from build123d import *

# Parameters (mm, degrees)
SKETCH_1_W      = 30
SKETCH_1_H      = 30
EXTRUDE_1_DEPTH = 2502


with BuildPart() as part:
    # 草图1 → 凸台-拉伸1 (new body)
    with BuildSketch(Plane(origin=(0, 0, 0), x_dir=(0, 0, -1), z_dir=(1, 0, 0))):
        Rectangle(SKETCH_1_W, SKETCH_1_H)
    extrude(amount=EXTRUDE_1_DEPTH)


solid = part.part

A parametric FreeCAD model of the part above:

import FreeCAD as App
import Part
import Sketcher

V = App.Vector

doc = App.newDocument("Part")
body = doc.addObject("PartDesign::Body", "Body")

# Sketch on YZ plane
sketch1 = body.newObject("Sketcher::SketchObject", "Sketch")
sketch1.AttachmentSupport = (doc.getObject("YZ_Plane"), [""])
sketch1.MapMode = "FlatFace"
sketch1.addGeometry([
    Part.LineSegment(V(15, 15, 0), V(-15, 15, 0)),
    Part.LineSegment(V(-15, 15, 0), V(-15, -15, 0)),
    Part.LineSegment(V(-15, -15, 0), V(15, -15, 0)),
    Part.LineSegment(V(15, -15, 0), V(15, 15, 0)),
], False)
sketch1.addConstraint([
    Sketcher.Constraint("Coincident", 0, 2, 1, 1),
    Sketcher.Constraint("Coincident", 1, 2, 2, 1),
    Sketcher.Constraint("Coincident", 2, 2, 3, 1),
    Sketcher.Constraint("Coincident", 3, 2, 0, 1),
    Sketcher.Constraint("Horizontal", 0),
    Sketcher.Constraint("Vertical", 1),
    Sketcher.Constraint("Horizontal", 2),
    Sketcher.Constraint("Vertical", 3),
    Sketcher.Constraint("Symmetric", 0, 2, 2, 2, -1, 1),
    Sketcher.Constraint("Equal", 2, 1),
    Sketcher.Constraint("DistanceX", 0, 2, 0, 1, 30.0),
])
pad1 = body.newObject("PartDesign::Pad", "Pad")
pad1.Profile = sketch1
pad1.Length = 2502

doc.recompute()
